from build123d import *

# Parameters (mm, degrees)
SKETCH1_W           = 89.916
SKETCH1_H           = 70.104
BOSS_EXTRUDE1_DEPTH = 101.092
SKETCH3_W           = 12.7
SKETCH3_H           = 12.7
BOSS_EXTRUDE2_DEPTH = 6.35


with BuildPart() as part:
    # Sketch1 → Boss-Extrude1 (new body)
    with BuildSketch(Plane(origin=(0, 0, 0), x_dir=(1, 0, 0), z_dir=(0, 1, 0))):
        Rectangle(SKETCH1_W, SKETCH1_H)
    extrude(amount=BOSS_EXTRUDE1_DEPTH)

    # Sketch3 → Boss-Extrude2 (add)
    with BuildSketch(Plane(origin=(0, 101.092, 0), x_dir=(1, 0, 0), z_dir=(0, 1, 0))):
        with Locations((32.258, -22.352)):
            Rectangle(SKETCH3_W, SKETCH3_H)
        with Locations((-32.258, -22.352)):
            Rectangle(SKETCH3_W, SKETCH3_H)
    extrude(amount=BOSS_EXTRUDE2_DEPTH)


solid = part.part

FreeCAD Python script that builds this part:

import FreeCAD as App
import Part
import Sketcher

V = App.Vector
Q = App.Units.Quantity

doc = App.newDocument("Part")
params = doc.addObject("Spreadsheet::Sheet", "Params")
for row, (alias, value) in enumerate([
    ("sketch1_width", "3.54 in"),
    ("sketch1_height", "2.76 in"),
    ("pad1_length", "3.98 in"),
    ("sketch2_width", "0.5 in"),
    ("pad2_length", "0.25 in"),
], start=1):
    params.set(f"A{row}", alias)
    params.set(f"B{row}", "=" + value)
    params.setAlias(f"B{row}", alias)

body = doc.addObject("PartDesign::Body", "Body")

# Sketch on XZ plane
sketch1 = body.newObject("Sketcher::SketchObject", "Sketch")
sketch1.AttachmentSupport = (doc.getObject("XZ_Plane"), [""])
sketch1.MapMode = "FlatFace"
sketch1.addGeometry([
    Part.LineSegment(V(-45, -35, 0), V(-45, 35, 0)),
    Part.LineSegment(V(-45, 35, 0), V(45, 35, 0)),
    Part.LineSegment(V(45, 35, 0), V(45, -35, 0)),
    Part.LineSegment(V(45, -35, 0), V(-45, -35, 0)),
], False)
sketch1.addConstraint([
    Sketcher.Constraint("Coincident", 0, 2, 1, 1),
    Sketcher.Constraint("Coincident", 1, 2, 2, 1),
    Sketcher.Constraint("Coincident", 2, 2, 3, 1),
    Sketcher.Constraint("Coincident", 3, 2, 0, 1),
    Sketcher.Constraint("Vertical", 0),
    Sketcher.Constraint("Horizontal", 1),
    Sketcher.Constraint("Vertical", 2),
    Sketcher.Constraint("Horizontal", 3),
    Sketcher.Constraint("Symmetric", 0, 2, 2, 2, -1, 1),
    Sketcher.Constraint("DistanceX", 1, 1, 1, 2, Q("3.54 in")),
    Sketcher.Constraint("DistanceY", 0, 1, 0, 2, Q("2.76 in")),
])
sketch1.setExpression("Constraints[9]", "Params.sketch1_width")
sketch1.setExpression("Constraints[10]", "Params.sketch1_height")
pad1 = body.newObject("PartDesign::Pad", "Pad")
pad1.Profile = sketch1
pad1.setExpression("Length", "Params.pad1_length")
pad1.Reversed = True

# Sketch on XZ plane
sketch2 = body.newObject("Sketcher::SketchObject", "Sketch001")
sketch2.AttachmentSupport = (doc.getObject("XZ_Plane"), [""])
sketch2.MapMode = "FlatFace"
sketch2.AttachmentOffset = App.Placement(V(0, 0, -3.98 * 25.4), App.Rotation())
sketch2.addGeometry([
    Part.LineSegment(V(26, 16, 0), V(26, 29, 0)),  # 0
    Part.LineSegment(V(26, 29, 0), V(39, 29, 0)),  # 1
    Part.LineSegment(V(39, 29, 0), V(39, 16, 0)),  # 2
    Part.LineSegment(V(39, 16, 0), V(26, 16, 0)),  # 3
    Part.LineSegment(V(-39, 16, 0), V(-39, 29, 0)),  # 4
    Part.LineSegment(V(-39, 29, 0), V(-26, 29, 0)),  # 5
    Part.LineSegment(V(-26, 29, 0), V(-26, 16, 0)),  # 6
    Part.LineSegment(V(-26, 16, 0), V(-39, 16, 0)),  # 7
], False)
sketch2.addConstraint([
    Sketcher.Constraint("Coincident", 0, 2, 1, 1),
    Sketcher.Constraint("Coincident", 1, 2, 2, 1),
    Sketcher.Constraint("Coincident", 2, 2, 3, 1),
    Sketcher.Constraint("Coincident", 3, 2, 0, 1),
    Sketcher.Constraint("Coincident", 4, 2, 5, 1),
    Sketcher.Constraint("Coincident", 5, 2, 6, 1),
    Sketcher.Constraint("Coincident", 6, 2, 7, 1),
    Sketcher.Constraint("Coincident", 7, 2, 4, 1),
    Sketcher.Constraint("Vertical", 0),
    Sketcher.Constraint("Horizontal", 1),
    Sketcher.Constraint("Vertical", 2),
    Sketcher.Constraint("Horizontal", 3),
    Sketcher.Constraint("Vertical", 4),
    Sketcher.Constraint("Horizontal", 5),
    Sketcher.Constraint("Vertical", 6),
    Sketcher.Constraint("Horizontal", 7),
    Sketcher.Constraint("Symmetric", 1, 2, 4, 2, -2),
    Sketcher.Constraint("Symmetric", 3, 2, 6, 2, -2),
    Sketcher.Constraint("Equal", 7, 0),
    Sketcher.Constraint("DistanceX", 1, 1, 1, 2, Q("0.5 in")),
    Sketcher.Constraint("DistanceX", -1, 1, 0, 2, Q("1.02 in")),
    Sketcher.Constraint("DistanceY", -1, 1, 0, 2, Q("1.13 in")),
])
sketch2.setExpression("Constraints[19]", "Params.sketch2_width")
pad2 = body.newObject("PartDesign::Pad", "Pad001")
pad2.Profile = sketch2
pad2.setExpression("Length", "Params.pad2_length")
pad2.Reversed = True

doc.recompute()
